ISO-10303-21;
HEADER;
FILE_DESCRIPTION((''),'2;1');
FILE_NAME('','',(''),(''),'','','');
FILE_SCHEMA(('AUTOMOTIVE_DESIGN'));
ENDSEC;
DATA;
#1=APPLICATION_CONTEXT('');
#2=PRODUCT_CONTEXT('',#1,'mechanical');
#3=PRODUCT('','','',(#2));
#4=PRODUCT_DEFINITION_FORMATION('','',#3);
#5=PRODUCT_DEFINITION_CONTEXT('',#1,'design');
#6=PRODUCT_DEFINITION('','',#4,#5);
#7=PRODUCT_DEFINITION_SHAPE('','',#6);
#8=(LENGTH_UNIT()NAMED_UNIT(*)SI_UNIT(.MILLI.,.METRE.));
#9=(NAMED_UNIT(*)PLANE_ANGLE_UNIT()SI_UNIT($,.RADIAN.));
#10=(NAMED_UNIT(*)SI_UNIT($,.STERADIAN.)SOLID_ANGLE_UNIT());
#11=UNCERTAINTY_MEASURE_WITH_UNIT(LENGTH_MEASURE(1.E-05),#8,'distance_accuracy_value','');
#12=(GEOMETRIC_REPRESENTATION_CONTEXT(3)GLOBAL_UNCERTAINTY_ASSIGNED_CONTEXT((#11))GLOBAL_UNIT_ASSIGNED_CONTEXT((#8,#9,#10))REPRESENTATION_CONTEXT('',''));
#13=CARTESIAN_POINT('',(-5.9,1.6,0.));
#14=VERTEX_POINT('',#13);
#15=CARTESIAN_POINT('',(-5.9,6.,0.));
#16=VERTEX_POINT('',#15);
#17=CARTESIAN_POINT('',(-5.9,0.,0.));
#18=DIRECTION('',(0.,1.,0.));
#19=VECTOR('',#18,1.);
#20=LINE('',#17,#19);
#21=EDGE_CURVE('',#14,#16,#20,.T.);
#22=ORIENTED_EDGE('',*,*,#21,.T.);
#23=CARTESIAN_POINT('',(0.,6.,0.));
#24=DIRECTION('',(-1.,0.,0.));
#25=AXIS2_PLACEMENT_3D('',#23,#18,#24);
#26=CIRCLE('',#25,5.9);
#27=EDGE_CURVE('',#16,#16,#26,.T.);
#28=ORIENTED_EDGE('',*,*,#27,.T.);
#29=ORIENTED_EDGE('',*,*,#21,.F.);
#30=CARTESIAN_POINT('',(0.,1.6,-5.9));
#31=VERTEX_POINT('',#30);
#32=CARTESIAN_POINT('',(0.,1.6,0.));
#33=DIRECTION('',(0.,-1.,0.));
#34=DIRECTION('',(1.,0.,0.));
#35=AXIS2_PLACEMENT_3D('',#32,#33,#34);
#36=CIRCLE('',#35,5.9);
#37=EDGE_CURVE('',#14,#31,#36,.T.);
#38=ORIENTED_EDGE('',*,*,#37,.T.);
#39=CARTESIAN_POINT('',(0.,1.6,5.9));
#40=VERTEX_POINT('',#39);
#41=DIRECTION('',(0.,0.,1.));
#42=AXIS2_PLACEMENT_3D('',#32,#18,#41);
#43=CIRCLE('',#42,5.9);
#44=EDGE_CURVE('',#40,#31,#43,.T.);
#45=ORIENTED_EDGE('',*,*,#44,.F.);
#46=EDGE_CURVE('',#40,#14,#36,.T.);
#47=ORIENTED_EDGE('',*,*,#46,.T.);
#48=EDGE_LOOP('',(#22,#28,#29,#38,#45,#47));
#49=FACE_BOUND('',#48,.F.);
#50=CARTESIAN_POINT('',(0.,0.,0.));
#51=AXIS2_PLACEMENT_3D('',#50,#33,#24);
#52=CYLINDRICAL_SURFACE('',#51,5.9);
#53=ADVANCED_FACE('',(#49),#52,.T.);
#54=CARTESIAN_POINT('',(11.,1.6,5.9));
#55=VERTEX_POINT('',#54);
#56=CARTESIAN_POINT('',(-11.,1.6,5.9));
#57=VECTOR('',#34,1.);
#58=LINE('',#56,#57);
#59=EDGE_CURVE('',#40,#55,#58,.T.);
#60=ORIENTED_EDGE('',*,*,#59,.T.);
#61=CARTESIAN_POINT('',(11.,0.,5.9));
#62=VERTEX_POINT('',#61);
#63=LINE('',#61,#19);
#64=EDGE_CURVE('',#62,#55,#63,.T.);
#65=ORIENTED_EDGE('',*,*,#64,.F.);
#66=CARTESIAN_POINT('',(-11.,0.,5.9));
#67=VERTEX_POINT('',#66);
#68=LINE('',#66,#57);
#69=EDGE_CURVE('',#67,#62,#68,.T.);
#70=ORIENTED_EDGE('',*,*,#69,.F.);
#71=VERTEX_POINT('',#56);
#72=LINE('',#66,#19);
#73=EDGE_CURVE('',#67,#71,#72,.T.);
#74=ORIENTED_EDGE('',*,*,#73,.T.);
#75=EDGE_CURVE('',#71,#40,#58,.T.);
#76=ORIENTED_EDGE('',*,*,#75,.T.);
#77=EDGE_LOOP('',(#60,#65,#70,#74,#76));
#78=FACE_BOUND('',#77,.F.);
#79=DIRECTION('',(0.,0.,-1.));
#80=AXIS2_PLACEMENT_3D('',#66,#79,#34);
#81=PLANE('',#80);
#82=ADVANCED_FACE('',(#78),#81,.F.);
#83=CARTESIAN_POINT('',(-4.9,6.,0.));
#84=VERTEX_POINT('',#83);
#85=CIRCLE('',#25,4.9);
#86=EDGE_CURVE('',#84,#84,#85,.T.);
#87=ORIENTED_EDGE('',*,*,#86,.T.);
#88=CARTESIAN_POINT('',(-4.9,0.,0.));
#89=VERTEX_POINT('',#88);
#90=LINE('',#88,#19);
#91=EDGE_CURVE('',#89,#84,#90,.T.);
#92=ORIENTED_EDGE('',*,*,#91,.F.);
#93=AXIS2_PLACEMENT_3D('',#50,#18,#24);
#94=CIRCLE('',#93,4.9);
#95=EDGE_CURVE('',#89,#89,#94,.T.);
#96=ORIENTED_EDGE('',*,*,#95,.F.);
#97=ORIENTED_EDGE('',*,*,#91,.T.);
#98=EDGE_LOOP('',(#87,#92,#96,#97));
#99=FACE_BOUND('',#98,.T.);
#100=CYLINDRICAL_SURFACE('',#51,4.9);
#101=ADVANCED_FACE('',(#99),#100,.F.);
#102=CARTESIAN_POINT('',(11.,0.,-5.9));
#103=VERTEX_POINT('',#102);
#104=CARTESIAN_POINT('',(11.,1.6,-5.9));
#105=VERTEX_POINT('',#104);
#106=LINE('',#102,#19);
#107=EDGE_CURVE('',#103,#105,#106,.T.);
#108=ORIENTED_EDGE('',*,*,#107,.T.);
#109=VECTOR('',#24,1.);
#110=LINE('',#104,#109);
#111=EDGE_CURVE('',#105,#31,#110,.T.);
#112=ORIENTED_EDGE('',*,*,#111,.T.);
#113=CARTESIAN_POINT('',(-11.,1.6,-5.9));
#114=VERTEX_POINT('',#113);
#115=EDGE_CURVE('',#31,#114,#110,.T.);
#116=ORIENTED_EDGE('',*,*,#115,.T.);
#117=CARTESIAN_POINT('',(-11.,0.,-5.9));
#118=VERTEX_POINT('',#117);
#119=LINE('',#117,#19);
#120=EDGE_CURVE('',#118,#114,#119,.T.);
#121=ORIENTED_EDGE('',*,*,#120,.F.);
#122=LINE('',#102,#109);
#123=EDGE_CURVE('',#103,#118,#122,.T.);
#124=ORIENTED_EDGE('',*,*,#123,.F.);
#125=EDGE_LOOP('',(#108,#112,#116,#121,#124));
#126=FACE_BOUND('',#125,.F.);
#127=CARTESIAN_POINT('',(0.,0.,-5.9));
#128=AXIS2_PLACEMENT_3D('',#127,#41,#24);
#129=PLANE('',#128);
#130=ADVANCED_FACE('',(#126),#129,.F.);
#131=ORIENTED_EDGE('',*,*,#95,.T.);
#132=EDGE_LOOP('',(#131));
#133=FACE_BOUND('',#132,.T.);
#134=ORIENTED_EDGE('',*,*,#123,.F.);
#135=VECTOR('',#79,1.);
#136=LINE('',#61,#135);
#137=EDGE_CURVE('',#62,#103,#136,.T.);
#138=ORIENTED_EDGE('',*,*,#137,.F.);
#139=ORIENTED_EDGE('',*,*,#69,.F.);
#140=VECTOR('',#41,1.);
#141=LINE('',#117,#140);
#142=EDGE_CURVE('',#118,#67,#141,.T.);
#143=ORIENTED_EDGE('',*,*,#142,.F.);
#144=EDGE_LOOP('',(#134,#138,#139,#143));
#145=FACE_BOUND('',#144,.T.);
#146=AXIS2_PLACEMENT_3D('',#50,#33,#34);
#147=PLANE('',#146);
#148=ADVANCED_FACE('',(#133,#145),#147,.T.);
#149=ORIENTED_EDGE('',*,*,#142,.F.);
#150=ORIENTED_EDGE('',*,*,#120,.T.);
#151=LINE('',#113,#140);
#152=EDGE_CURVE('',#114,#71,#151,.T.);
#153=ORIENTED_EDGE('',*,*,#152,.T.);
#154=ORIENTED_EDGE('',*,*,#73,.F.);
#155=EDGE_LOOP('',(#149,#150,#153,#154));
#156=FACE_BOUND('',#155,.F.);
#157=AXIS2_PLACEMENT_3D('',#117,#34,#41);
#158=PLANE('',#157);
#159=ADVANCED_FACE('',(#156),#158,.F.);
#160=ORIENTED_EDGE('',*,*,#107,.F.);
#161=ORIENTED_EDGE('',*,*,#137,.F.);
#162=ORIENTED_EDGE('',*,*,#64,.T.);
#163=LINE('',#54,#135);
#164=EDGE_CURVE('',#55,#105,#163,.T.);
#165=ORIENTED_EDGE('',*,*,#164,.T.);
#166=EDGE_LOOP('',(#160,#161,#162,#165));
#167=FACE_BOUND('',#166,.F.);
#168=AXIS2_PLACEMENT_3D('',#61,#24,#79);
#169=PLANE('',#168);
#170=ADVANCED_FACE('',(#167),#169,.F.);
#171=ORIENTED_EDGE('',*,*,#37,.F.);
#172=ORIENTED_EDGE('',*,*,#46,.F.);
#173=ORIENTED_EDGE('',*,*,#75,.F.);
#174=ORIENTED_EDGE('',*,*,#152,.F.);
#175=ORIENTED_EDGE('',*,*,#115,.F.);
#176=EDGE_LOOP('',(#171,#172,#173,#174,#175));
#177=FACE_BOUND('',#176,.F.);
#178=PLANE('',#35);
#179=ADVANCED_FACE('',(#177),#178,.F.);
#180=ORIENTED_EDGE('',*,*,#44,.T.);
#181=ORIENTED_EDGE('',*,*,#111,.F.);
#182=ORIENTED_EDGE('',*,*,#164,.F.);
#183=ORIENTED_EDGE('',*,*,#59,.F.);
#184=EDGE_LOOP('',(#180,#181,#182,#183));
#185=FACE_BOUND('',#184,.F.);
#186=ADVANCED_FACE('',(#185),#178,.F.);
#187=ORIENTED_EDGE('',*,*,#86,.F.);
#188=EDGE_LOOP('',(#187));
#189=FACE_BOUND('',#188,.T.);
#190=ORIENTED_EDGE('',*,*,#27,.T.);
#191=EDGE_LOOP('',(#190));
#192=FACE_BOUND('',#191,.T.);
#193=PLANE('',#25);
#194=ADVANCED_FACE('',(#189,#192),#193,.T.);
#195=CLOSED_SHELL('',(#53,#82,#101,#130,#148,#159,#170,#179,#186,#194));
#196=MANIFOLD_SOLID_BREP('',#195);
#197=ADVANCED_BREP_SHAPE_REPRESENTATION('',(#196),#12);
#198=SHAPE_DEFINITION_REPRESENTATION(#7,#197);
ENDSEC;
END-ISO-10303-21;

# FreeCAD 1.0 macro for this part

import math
import FreeCAD as App
import Part
import Sketcher
from FreeCAD import Vector
Q = App.Units.Quantity

doc = App.newDocument("Part")
body = doc.addObject("PartDesign::Body", "Body")

# Sketch on XZ plane
sketch1 = doc.addObject("Sketcher::SketchObject", "Sketch")
body.addObject(sketch1)
sketch1.AttachmentSupport = (doc.XZ_Plane, [""])
sketch1.MapMode = "FlatFace"
sketch1.addGeometry(Part.Circle(Vector(0, 0, 0), Vector(0, 0, 1), 5.9), False)
sketch1.addGeometry(Part.Circle(Vector(0, 0, 0), Vector(0, 0, 1), 4.9), False)
sketch1.addConstraint(Sketcher.Constraint("Coincident", 0, 3, -1, 1))
sketch1.addConstraint(Sketcher.Constraint("Coincident", 1, 3, -1, 1))
sketch1.addConstraint(Sketcher.Constraint("Diameter", 1, Q("9.8 mm")))
sketch1.addConstraint(Sketcher.Constraint("Diameter", 0, Q("11.8 mm")))
pad1 = doc.addObject("PartDesign::Pad", "Pad")
body.addObject(pad1)
pad1.Profile = sketch1
pad1.Length = 6
pad1.Reversed = True

# Sketch on XZ plane
sketch2 = doc.addObject("Sketcher::SketchObject", "Sketch001")
body.addObject(sketch2)
sketch2.AttachmentSupport = (doc.XZ_Plane, [""])
sketch2.MapMode = "FlatFace"
sketch2.addGeometry(Part.ArcOfCircle(Part.Circle(Vector(0, 0, 0), Vector(0, 0, 1), 6), math.radians(-90), math.radians(90)), False)
sketch2.addGeometry(Part.LineSegment(Vector(0, -6, 0), Vector(11, -6, 0)), False)
sketch2.addGeometry(Part.LineSegment(Vector(11, -6, 0), Vector(11, 6, 0)), False)
sketch2.addGeometry(Part.LineSegment(Vector(11, 6, 0), Vector(0, 6, 0)), False)
sketch2.addGeometry(Part.ArcOfCircle(Part.Circle(Vector(0, 0, 0), Vector(0, 0, 1), 6), math.radians(90), math.radians(270)), False)
sketch2.addGeometry(Part.LineSegment(Vector(0, 6, 0), Vector(-11, 6, 0)), False)
sketch2.addGeometry(Part.LineSegment(Vector(-11, 6, 0), Vector(-11, -6, 0)), False)
sketch2.addGeometry(Part.LineSegment(Vector(-11, -6, 0), Vector(0, -6, 0)), False)
sketch2.addConstraint(Sketcher.Constraint("Tangent", 0, 1, 1, 1))
sketch2.addConstraint(Sketcher.Constraint("Coincident", 1, 2, 2, 1))
sketch2.addConstraint(Sketcher.Constraint("Coincident", 2, 2, 3, 1))
sketch2.addConstraint(Sketcher.Constraint("Tangent", 3, 2, 0, 2))
sketch2.addConstraint(Sketcher.Constraint("Tangent", 4, 1, 5, 1))
sketch2.addConstraint(Sketcher.Constraint("Coincident", 5, 2, 6, 1))
sketch2.addConstraint(Sketcher.Constraint("Coincident", 6, 2, 7, 1))
sketch2.addConstraint(Sketcher.Constraint("Tangent", 7, 2, 4, 2))
sketch2.addConstraint(Sketcher.Constraint("Horizontal", 1))
sketch2.addConstraint(Sketcher.Constraint("Vertical", 2))
sketch2.addConstraint(Sketcher.Constraint("Horizontal", 3))
sketch2.addConstraint(Sketcher.Constraint("Horizontal", 5))
sketch2.addConstraint(Sketcher.Constraint("Vertical", 6))
sketch2.addConstraint(Sketcher.Constraint("Horizontal", 7))
sketch2.addConstraint(Sketcher.Constraint("Coincident", 0, 3, -1, 1))
sketch2.addConstraint(Sketcher.Constraint("Coincident", 4, 3, -1, 1))
sketch2.addConstraint(Sketcher.Constraint("Equal", 0, 4))
sketch2.addConstraint(Sketcher.Constraint("Equal", 3, 5))
sketch2.addConstraint(Sketcher.Constraint("Radius", 0, Q("5.9 mm")))
sketch2.addConstraint(Sketcher.Constraint("DistanceX", 1, 1, 1, 2, Q("11 mm")))
pad2 = doc.addObject("PartDesign::Pad", "Pad001")
body.addObject(pad2)
pad2.Profile = sketch2
pad2.Length = 1.6
pad2.Reversed = True

doc.recompute()
